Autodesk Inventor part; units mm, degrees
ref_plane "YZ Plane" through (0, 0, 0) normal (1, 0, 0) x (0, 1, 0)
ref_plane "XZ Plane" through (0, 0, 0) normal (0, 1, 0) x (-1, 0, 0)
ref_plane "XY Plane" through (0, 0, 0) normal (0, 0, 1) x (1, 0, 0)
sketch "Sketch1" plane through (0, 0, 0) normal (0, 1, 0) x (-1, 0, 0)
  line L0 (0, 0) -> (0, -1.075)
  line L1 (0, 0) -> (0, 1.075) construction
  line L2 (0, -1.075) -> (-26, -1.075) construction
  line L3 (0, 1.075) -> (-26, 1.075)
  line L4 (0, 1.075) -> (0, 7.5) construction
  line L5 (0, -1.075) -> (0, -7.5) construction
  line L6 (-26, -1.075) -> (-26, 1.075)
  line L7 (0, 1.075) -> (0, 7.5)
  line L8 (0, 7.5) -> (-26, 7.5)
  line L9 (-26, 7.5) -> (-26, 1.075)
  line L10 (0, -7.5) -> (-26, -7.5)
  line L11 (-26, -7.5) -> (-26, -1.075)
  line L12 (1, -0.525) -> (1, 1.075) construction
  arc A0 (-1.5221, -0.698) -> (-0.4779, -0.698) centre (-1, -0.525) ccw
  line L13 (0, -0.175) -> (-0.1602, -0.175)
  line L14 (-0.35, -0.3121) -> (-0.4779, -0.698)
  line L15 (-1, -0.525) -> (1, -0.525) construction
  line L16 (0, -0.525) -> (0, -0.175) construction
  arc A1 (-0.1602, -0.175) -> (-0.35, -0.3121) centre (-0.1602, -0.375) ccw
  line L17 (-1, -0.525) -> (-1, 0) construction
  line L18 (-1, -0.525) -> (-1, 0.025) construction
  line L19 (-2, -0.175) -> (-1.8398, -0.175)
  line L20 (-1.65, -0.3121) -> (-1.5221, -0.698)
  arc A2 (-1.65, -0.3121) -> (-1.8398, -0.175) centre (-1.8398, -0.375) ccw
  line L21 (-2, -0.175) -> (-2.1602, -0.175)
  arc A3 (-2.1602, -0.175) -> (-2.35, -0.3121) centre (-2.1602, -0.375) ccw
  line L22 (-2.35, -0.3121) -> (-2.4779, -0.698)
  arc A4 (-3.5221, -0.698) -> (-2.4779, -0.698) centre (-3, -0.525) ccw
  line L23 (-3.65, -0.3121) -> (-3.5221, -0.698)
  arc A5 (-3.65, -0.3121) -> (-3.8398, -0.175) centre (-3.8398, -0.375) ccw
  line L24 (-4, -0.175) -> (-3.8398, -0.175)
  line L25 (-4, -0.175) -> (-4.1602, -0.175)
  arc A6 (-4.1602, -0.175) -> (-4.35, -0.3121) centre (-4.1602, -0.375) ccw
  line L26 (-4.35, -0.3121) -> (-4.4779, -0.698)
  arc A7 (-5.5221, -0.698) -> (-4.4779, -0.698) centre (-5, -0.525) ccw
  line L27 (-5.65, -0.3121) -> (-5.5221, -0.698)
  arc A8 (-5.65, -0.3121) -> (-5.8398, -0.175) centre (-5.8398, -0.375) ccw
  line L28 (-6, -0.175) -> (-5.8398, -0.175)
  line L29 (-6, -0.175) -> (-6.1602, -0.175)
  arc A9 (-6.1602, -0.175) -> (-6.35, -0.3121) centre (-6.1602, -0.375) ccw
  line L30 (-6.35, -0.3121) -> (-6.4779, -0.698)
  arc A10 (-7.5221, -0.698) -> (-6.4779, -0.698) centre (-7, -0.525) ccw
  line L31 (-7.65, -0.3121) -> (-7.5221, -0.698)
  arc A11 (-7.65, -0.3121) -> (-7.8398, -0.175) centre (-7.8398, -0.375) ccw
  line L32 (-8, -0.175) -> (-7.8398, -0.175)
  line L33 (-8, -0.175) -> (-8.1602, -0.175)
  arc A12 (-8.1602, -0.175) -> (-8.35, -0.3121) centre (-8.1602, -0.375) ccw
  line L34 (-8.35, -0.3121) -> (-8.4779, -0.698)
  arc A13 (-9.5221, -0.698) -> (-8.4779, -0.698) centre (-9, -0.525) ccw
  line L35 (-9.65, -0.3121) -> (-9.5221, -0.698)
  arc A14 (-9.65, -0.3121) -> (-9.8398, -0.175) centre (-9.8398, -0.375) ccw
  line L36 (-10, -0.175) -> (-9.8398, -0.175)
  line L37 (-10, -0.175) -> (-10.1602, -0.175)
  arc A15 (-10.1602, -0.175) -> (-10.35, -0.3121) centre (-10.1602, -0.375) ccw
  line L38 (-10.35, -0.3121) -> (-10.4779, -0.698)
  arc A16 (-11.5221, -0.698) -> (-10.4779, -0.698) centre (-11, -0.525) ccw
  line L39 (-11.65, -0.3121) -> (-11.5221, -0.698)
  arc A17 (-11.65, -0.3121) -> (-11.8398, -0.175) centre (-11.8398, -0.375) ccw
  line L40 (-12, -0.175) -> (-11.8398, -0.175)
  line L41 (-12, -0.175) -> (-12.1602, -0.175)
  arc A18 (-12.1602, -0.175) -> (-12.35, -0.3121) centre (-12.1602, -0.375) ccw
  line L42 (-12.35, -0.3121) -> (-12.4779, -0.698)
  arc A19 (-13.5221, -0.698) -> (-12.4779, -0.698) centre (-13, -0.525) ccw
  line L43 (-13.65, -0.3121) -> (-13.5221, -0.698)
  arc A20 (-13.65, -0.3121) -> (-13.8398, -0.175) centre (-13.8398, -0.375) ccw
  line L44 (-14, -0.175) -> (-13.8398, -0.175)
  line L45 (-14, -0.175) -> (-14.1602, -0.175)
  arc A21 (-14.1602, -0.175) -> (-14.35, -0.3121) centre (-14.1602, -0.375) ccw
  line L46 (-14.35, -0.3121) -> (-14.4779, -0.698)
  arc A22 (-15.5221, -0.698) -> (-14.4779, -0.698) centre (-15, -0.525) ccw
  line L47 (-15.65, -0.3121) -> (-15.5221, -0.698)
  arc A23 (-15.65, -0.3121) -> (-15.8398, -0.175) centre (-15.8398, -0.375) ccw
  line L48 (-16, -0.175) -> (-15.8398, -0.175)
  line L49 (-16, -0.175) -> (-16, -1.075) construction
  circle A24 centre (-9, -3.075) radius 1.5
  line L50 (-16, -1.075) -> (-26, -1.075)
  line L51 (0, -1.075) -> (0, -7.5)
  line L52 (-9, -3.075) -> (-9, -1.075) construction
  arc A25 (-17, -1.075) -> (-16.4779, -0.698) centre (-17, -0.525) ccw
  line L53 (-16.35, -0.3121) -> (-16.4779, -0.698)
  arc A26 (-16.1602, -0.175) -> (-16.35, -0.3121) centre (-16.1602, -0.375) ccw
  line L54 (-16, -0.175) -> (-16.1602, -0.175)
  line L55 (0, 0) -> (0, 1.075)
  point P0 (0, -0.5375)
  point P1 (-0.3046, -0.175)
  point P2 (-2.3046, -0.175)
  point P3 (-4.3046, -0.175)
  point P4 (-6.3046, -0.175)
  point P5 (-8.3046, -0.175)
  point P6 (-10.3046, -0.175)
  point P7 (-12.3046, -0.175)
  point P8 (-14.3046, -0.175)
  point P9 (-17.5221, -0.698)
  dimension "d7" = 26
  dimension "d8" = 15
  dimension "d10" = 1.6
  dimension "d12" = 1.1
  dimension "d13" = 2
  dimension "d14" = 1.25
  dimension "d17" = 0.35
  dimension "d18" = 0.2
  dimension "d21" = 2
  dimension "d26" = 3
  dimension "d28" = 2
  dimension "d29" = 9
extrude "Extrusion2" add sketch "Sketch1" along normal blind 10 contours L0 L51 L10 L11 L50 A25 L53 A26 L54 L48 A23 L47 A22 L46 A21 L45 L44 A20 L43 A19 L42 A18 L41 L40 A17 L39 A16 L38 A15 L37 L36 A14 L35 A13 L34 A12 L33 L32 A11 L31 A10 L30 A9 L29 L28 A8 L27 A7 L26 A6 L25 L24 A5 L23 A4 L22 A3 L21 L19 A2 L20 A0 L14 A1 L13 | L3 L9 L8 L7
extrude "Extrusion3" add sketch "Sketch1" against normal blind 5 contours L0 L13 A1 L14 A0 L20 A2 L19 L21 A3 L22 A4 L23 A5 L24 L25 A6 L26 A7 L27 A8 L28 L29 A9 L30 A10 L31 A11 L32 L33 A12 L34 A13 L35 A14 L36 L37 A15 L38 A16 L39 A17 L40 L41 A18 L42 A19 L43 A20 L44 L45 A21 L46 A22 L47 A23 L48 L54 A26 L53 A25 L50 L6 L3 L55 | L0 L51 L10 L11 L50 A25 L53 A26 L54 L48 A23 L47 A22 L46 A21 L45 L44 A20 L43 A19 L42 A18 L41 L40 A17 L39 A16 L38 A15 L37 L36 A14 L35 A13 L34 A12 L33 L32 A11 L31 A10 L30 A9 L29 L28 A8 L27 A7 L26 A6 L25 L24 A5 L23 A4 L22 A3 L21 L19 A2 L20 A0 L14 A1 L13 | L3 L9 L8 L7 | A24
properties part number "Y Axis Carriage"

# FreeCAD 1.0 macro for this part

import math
import FreeCAD as App
import Part
import Sketcher

V = App.Vector

doc = App.newDocument("Part")
body = doc.addObject("PartDesign::Body", "Body")
body.AllowCompound = True

# Sketch on XZ plane
sketch1 = body.newObject("Sketcher::SketchObject", "Sketch")
sketch1.AttachmentSupport = (doc.getObject("XZ_Plane"), [""])
sketch1.MapMode = "FlatFace"
sketch1.addGeometry([
    Part.LineSegment(V(0, -7.5, 0), V(0, -0.175, 0)),  # 0
    Part.LineSegment(V(0, -0.175, 0), V(0.1602, -0.175, 0)),  # 1
    Part.ArcOfCircle(Part.Circle(V(0.1602, -0.375, 0), V(0, 0, 1), 0.2), math.radians(18.335273), math.radians(90)),  # 2
    Part.LineSegment(V(0.35, -0.3121, 0), V(0.4779, -0.698, 0)),  # 3
    Part.ArcOfCircle(Part.Circle(V(1, -0.525, 0), V(0, 0, 1), 0.550016), math.radians(-161.667171), math.radians(-18.332829)),  # 4
    Part.LineSegment(V(1.5221, -0.698, 0), V(1.65, -0.3121, 0)),  # 5
    Part.ArcOfCircle(Part.Circle(V(1.8398, -0.375, 0), V(0, 0, 1), 0.199951), math.radians(90), math.radians(161.664727)),  # 6
    Part.LineSegment(V(1.8398, -0.175, 0), V(2.1602, -0.175, 0)),  # 7
    Part.ArcOfCircle(Part.Circle(V(2.1602, -0.375, 0), V(0, 0, 1), 0.2), math.radians(18.335273), math.radians(90)),  # 8
    Part.LineSegment(V(2.35, -0.3121, 0), V(2.4779, -0.698, 0)),  # 9
    Part.ArcOfCircle(Part.Circle(V(3, -0.525, 0), V(0, 0, 1), 0.550016), math.radians(-161.667171), math.radians(-18.332829)),  # 10
    Part.LineSegment(V(3.5221, -0.698, 0), V(3.65, -0.3121, 0)),  # 11
    Part.ArcOfCircle(Part.Circle(V(3.8398, -0.375, 0), V(0, 0, 1), 0.199951), math.radians(90), math.radians(161.664727)),  # 12
    Part.LineSegment(V(3.8398, -0.175, 0), V(4.1602, -0.175, 0)),  # 13
    Part.ArcOfCircle(Part.Circle(V(4.1602, -0.375, 0), V(0, 0, 1), 0.2), math.radians(18.335273), math.radians(90)),  # 14
    Part.LineSegment(V(4.35, -0.3121, 0), V(4.4779, -0.698, 0)),  # 15
    Part.ArcOfCircle(Part.Circle(V(5, -0.525, 0), V(0, 0, 1), 0.550016), math.radians(-161.667171), math.radians(-18.332829)),  # 16
    Part.LineSegment(V(5.5221, -0.698, 0), V(5.65, -0.3121, 0)),  # 17
    Part.ArcOfCircle(Part.Circle(V(5.8398, -0.375, 0), V(0, 0, 1), 0.199951), math.radians(90), math.radians(161.664727)),  # 18
    Part.LineSegment(V(5.8398, -0.175, 0), V(6.1602, -0.175, 0)),  # 19
    Part.ArcOfCircle(Part.Circle(V(6.1602, -0.375, 0), V(0, 0, 1), 0.2), math.radians(18.335273), math.radians(90)),  # 20
    Part.LineSegment(V(6.35, -0.3121, 0), V(6.4779, -0.698, 0)),  # 21
    Part.ArcOfCircle(Part.Circle(V(7, -0.525, 0), V(0, 0, 1), 0.550016), math.radians(-161.667171), math.radians(-18.332829)),  # 22
    Part.LineSegment(V(7.5221, -0.698, 0), V(7.65, -0.3121, 0)),  # 23
    Part.ArcOfCircle(Part.Circle(V(7.8398, -0.375, 0), V(0, 0, 1), 0.199951), math.radians(90), math.radians(161.664727)),  # 24
    Part.LineSegment(V(7.8398, -0.175, 0), V(8.1602, -0.175, 0)),  # 25
    Part.ArcOfCircle(Part.Circle(V(8.1602, -0.375, 0), V(0, 0, 1), 0.2), math.radians(18.335273), math.radians(90)),  # 26
    Part.LineSegment(V(8.35, -0.3121, 0), V(8.4779, -0.698, 0)),  # 27
    Part.ArcOfCircle(Part.Circle(V(9, -0.525, 0), V(0, 0, 1), 0.550016), math.radians(-161.667171), math.radians(-18.332829)),  # 28
    Part.LineSegment(V(9.5221, -0.698, 0), V(9.65, -0.3121, 0)),  # 29
    Part.ArcOfCircle(Part.Circle(V(9.8398, -0.375, 0), V(0, 0, 1), 0.199951), math.radians(90), math.radians(161.664727)),  # 30
    Part.LineSegment(V(9.8398, -0.175, 0), V(10.1602, -0.175, 0)),  # 31
    Part.ArcOfCircle(Part.Circle(V(10.1602, -0.375, 0), V(0, 0, 1), 0.2), math.radians(18.335273), math.radians(90)),  # 32
    Part.LineSegment(V(10.35, -0.3121, 0), V(10.4779, -0.698, 0)),  # 33
    Part.ArcOfCircle(Part.Circle(V(11, -0.525, 0), V(0, 0, 1), 0.550016), math.radians(-161.667171), math.radians(-18.332829)),  # 34
    Part.LineSegment(V(11.5221, -0.698, 0), V(11.65, -0.3121, 0)),  # 35
    Part.ArcOfCircle(Part.Circle(V(11.8398, -0.375, 0), V(0, 0, 1), 0.199951), math.radians(90), math.radians(161.664727)),  # 36
    Part.LineSegment(V(11.8398, -0.175, 0), V(12.1602, -0.175, 0)),  # 37
    Part.ArcOfCircle(Part.Circle(V(12.1602, -0.375, 0), V(0, 0, 1), 0.2), math.radians(18.335273), math.radians(90)),  # 38
    Part.LineSegment(V(12.35, -0.3121, 0), V(12.4779, -0.698, 0)),  # 39
    Part.ArcOfCircle(Part.Circle(V(13, -0.525, 0), V(0, 0, 1), 0.550016), math.radians(-161.667171), math.radians(-18.332829)),  # 40
    Part.LineSegment(V(13.5221, -0.698, 0), V(13.65, -0.3121, 0)),  # 41
    Part.ArcOfCircle(Part.Circle(V(13.8398, -0.375, 0), V(0, 0, 1), 0.199951), math.radians(90), math.radians(161.664727)),  # 42
    Part.LineSegment(V(13.8398, -0.175, 0), V(14.1602, -0.175, 0)),  # 43
    Part.ArcOfCircle(Part.Circle(V(14.1602, -0.375, 0), V(0, 0, 1), 0.2), math.radians(18.335273), math.radians(90)),  # 44
    Part.LineSegment(V(14.35, -0.3121, 0), V(14.4779, -0.698, 0)),  # 45
    Part.ArcOfCircle(Part.Circle(V(15, -0.525, 0), V(0, 0, 1), 0.550016), math.radians(-161.667171), math.radians(-18.332829)),  # 46
    Part.LineSegment(V(15.5221, -0.698, 0), V(15.65, -0.3121, 0)),  # 47
    Part.ArcOfCircle(Part.Circle(V(15.8398, -0.375, 0), V(0, 0, 1), 0.199951), math.radians(90), math.radians(161.664727)),  # 48
    Part.LineSegment(V(15.8398, -0.175, 0), V(16.1602, -0.175, 0)),  # 49
    Part.ArcOfCircle(Part.Circle(V(16.1602, -0.375, 0), V(0, 0, 1), 0.2), math.radians(18.335273), math.radians(90)),  # 50
    Part.LineSegment(V(16.35, -0.3121, 0), V(16.4779, -0.698, 0)),  # 51
    Part.ArcOfCircle(Part.Circle(V(17, -0.525, 0), V(0, 0, 1), 0.55), math.radians(-161.667171), math.radians(-90)),  # 52
    Part.LineSegment(V(17, -1.075, 0), V(26, -1.075, 0)),  # 53
    Part.LineSegment(V(26, -1.075, 0), V(26, -7.5, 0)),  # 54
    Part.LineSegment(V(26, -7.5, 0), V(0, -7.5, 0)),  # 55
    Part.Circle(V(9, -3.075, 0), V(0, 0, 1), 1.5),  # 56
    Part.LineSegment(V(26, 1.075, 0), V(0, 1.075, 0)),  # 57
    Part.LineSegment(V(0, 1.075, 0), V(0, 7.5, 0)),  # 58
    Part.LineSegment(V(0, 7.5, 0), V(26, 7.5, 0)),  # 59
    Part.LineSegment(V(26, 7.5, 0), V(26, 1.075, 0)),  # 60
], False)
sketch1.addConstraint([
    Sketcher.Constraint("Coincident", 0, 2, 1, 1),
    Sketcher.Constraint("Tangent", 1, 2, 2, 2),
    Sketcher.Constraint("Tangent", 2, 1, 3, 1),
    Sketcher.Constraint("Tangent", 3, 2, 4, 1),
    Sketcher.Constraint("Tangent", 4, 2, 5, 1),
    Sketcher.Constraint("Tangent", 5, 2, 6, 2),
    Sketcher.Constraint("Tangent", 6, 1, 7, 1),
    Sketcher.Constraint("Tangent", 7, 2, 8, 2),
    Sketcher.Constraint("Tangent", 8, 1, 9, 1),
    Sketcher.Constraint("Tangent", 9, 2, 10, 1),
    Sketcher.Constraint("Tangent", 10, 2, 11, 1),
    Sketcher.Constraint("Tangent", 11, 2, 12, 2),
    Sketcher.Constraint("Tangent", 12, 1, 13, 1),
    Sketcher.Constraint("Tangent", 13, 2, 14, 2),
    Sketcher.Constraint("Tangent", 14, 1, 15, 1),
    Sketcher.Constraint("Tangent", 15, 2, 16, 1),
    Sketcher.Constraint("Tangent", 16, 2, 17, 1),
    Sketcher.Constraint("Tangent", 17, 2, 18, 2),
    Sketcher.Constraint("Tangent", 18, 1, 19, 1),
    Sketcher.Constraint("Tangent", 19, 2, 20, 2),
    Sketcher.Constraint("Tangent", 20, 1, 21, 1),
    Sketcher.Constraint("Tangent", 21, 2, 22, 1),
    Sketcher.Constraint("Tangent", 22, 2, 23, 1),
    Sketcher.Constraint("Tangent", 23, 2, 24, 2),
    Sketcher.Constraint("Tangent", 24, 1, 25, 1),
    Sketcher.Constraint("Tangent", 25, 2, 26, 2),
    Sketcher.Constraint("Tangent", 26, 1, 27, 1),
    Sketcher.Constraint("Tangent", 27, 2, 28, 1),
    Sketcher.Constraint("Tangent", 28, 2, 29, 1),
    Sketcher.Constraint("Tangent", 29, 2, 30, 2),
    Sketcher.Constraint("Tangent", 30, 1, 31, 1),
    Sketcher.Constraint("Tangent", 31, 2, 32, 2),
    Sketcher.Constraint("Tangent", 32, 1, 33, 1),
    Sketcher.Constraint("Tangent", 33, 2, 34, 1),
    Sketcher.Constraint("Tangent", 34, 2, 35, 1),
    Sketcher.Constraint("Tangent", 35, 2, 36, 2),
    Sketcher.Constraint("Tangent", 36, 1, 37, 1),
    Sketcher.Constraint("Tangent", 37, 2, 38, 2),
    Sketcher.Constraint("Tangent", 38, 1, 39, 1),
    Sketcher.Constraint("Tangent", 39, 2, 40, 1),
    Sketcher.Constraint("Tangent", 40, 2, 41, 1),
    Sketcher.Constraint("Tangent", 41, 2, 42, 2),
    Sketcher.Constraint("Tangent", 42, 1, 43, 1),
    Sketcher.Constraint("Tangent", 43, 2, 44, 2),
    Sketcher.Constraint("Tangent", 44, 1, 45, 1),
    Sketcher.Constraint("Tangent", 45, 2, 46, 1),
    Sketcher.Constraint("Tangent", 46, 2, 47, 1),
    Sketcher.Constraint("Tangent", 47, 2, 48, 2),
    Sketcher.Constraint("Tangent", 48, 1, 49, 1),
    Sketcher.Constraint("Tangent", 49, 2, 50, 2),
    Sketcher.Constraint("Tangent", 50, 1, 51, 1),
    Sketcher.Constraint("Tangent", 51, 2, 52, 1),
    Sketcher.Constraint("Tangent", 52, 2, 53, 1),
    Sketcher.Constraint("Coincident", 53, 2, 54, 1),
    Sketcher.Constraint("Coincident", 54, 2, 55, 1),
    Sketcher.Constraint("Coincident", 55, 2, 0, 1),
    Sketcher.Constraint("Coincident", 57, 2, 58, 1),
    Sketcher.Constraint("Coincident", 58, 2, 59, 1),
    Sketcher.Constraint("Coincident", 59, 2, 60, 1),
    Sketcher.Constraint("Coincident", 60, 2, 57, 1),
    Sketcher.Constraint("Vertical", 0),
    Sketcher.Constraint("Horizontal", 1),
    Sketcher.Constraint("Horizontal", 7),
    Sketcher.Constraint("Horizontal", 13),
    Sketcher.Constraint("Horizontal", 19),
    Sketcher.Constraint("Horizontal", 25),
    Sketcher.Constraint("Horizontal", 31),
    Sketcher.Constraint("Horizontal", 37),
    Sketcher.Constraint("Horizontal", 43),
    Sketcher.Constraint("Horizontal", 49),
    Sketcher.Constraint("Horizontal", 53),
    Sketcher.Constraint("Vertical", 54),
    Sketcher.Constraint("Horizontal", 55),
    Sketcher.Constraint("Horizontal", 57),
    Sketcher.Constraint("Vertical", 58),
    Sketcher.Constraint("Horizontal", 59),
    Sketcher.Constraint("Vertical", 60),
    Sketcher.Constraint("Equal", 2, 6),
    Sketcher.Constraint("Equal", 6, 8),
    Sketcher.Constraint("Equal", 4, 10),
    Sketcher.Constraint("Equal", 8, 12),
    Sketcher.Constraint("Equal", 12, 14),
    Sketcher.Constraint("Equal", 10, 16),
    Sketcher.Constraint("Equal", 14, 18),
    Sketcher.Constraint("Equal", 18, 20),
    Sketcher.Constraint("Equal", 16, 22),
    Sketcher.Constraint("Equal", 20, 24),
    Sketcher.Constraint("Equal", 24, 26),
    Sketcher.Constraint("Equal", 22, 28),
    Sketcher.Constraint("Equal", 26, 30),
    Sketcher.Constraint("Equal", 30, 32),
    Sketcher.Constraint("Equal", 28, 34),
    Sketcher.Constraint("Equal", 32, 36),
    Sketcher.Constraint("Equal", 36, 38),
    Sketcher.Constraint("Equal", 34, 40),
    Sketcher.Constraint("Equal", 38, 42),
    Sketcher.Constraint("Equal", 42, 44),
    Sketcher.Constraint("Equal", 40, 46),
    Sketcher.Constraint("Equal", 44, 48),
    Sketcher.Constraint("Equal", 48, 50),
    Sketcher.Constraint("Equal", 46, 52),
    Sketcher.Constraint("Symmetric", 55, 2, 58, 2, -1, 1),
    Sketcher.Constraint("Symmetric", 53, 2, 60, 2, -1),
    Sketcher.Constraint("PointOnObject", 0, 2, -2),
    Sketcher.Constraint("Parallel", 3, 9),
    Sketcher.Constraint("Parallel", 5, 11),
    Sketcher.Constraint("Parallel", 9, 15),
    Sketcher.Constraint("Parallel", 11, 17),
    Sketcher.Constraint("Parallel", 15, 21),
    Sketcher.Constraint("Parallel", 17, 23),
    Sketcher.Constraint("Parallel", 21, 27),
    Sketcher.Constraint("Parallel", 23, 29),
    Sketcher.Constraint("Parallel", 27, 33),
    Sketcher.Constraint("Parallel", 29, 35),
    Sketcher.Constraint("Parallel", 33, 39),
    Sketcher.Constraint("Parallel", 35, 41),
    Sketcher.Constraint("Parallel", 39, 45),
    Sketcher.Constraint("Parallel", 41, 47),
    Sketcher.Constraint("Parallel", 45, 51),
    Sketcher.Constraint("Horizontal", 2, 3, 6, 3),
    Sketcher.Constraint("Horizontal", 4, 3, 10, 3),
    Sketcher.Constraint("Horizontal", 8, 3, 12, 3),
    Sketcher.Constraint("Horizontal", 10, 3, 16, 3),
    Sketcher.Constraint("Horizontal", 14, 3, 18, 3),
    Sketcher.Constraint("Horizontal", 16, 3, 22, 3),
    Sketcher.Constraint("Horizontal", 20, 3, 24, 3),
    Sketcher.Constraint("Horizontal", 22, 3, 28, 3),
    Sketcher.Constraint("Horizontal", 26, 3, 30, 3),
    Sketcher.Constraint("Horizontal", 28, 3, 34, 3),
    Sketcher.Constraint("Horizontal", 32, 3, 36, 3),
    Sketcher.Constraint("Horizontal", 34, 3, 40, 3),
    Sketcher.Constraint("Horizontal", 38, 3, 42, 3),
    Sketcher.Constraint("Horizontal", 40, 3, 46, 3),
    Sketcher.Constraint("Horizontal", 44, 3, 48, 3),
    Sketcher.Constraint("Horizontal", 46, 3, 52, 3),
    Sketcher.Constraint("Horizontal", 3, 2, 4, 2),
    Sketcher.Constraint("Vertical", 28, 3, 56, 3),
    Sketcher.Constraint("Equal", 7, 13),
    Sketcher.Constraint("Equal", 13, 19),
    Sketcher.Constraint("Equal", 19, 25),
    Sketcher.Constraint("Equal", 25, 31),
    Sketcher.Constraint("Equal", 31, 37),
    Sketcher.Constraint("Equal", 37, 43),
    Sketcher.Constraint("Equal", 43, 49),
    Sketcher.Constraint("Diameter", 56, 3.0),
    Sketcher.Constraint("Radius", 2, 0.2),
    Sketcher.Constraint("DistanceX", 53, 1, 53, 2, 9.0),
    Sketcher.Constraint("DistanceX", 55, 2, 55, 1, 26.0),
    Sketcher.Constraint("Radius", 4, 0.55),
    Sketcher.Constraint("DistanceX", -1, 1, 10, 3, 3.0),
    Sketcher.Constraint("DistanceX", -1, 1, 2, 1, 0.35),
    Sketcher.Constraint("DistanceY", 54, 2, -1, 1, 7.5),
    Sketcher.Constraint("DistanceY", 0, 1, 0, 2, 7.325),
    Sketcher.Constraint("DistanceY", 54, 2, 54, 1, 6.425),
    Sketcher.Constraint("DistanceY", 56, 3, -1, 1, 3.075),
])
pad1 = body.newObject("PartDesign::Pad", "Pad")
pad1.Profile = sketch1
pad1.Length = 10
pad1.Reversed = True

# Sketch on XZ plane
sketch2 = body.newObject("Sketcher::SketchObject", "Sketch001")
sketch2.AttachmentSupport = (doc.getObject("XZ_Plane"), [""])
sketch2.MapMode = "FlatFace"
sketch2.addGeometry([
    Part.LineSegment(V(0, 7.5, 0), V(26, 7.5, 0)),
    Part.LineSegment(V(26, 7.5, 0), V(26, -7.5, 0)),
    Part.LineSegment(V(26, -7.5, 0), V(0, -7.5, 0)),
    Part.LineSegment(V(0, -7.5, 0), V(0, 7.5, 0)),
], False)
sketch2.addConstraint([
    Sketcher.Constraint("Coincident", 0, 2, 1, 1),
    Sketcher.Constraint("Coincident", 1, 2, 2, 1),
    Sketcher.Constraint("Coincident", 2, 2, 3, 1),
    Sketcher.Constraint("Coincident", 3, 2, 0, 1),
    Sketcher.Constraint("Horizontal", 0),
    Sketcher.Constraint("Vertical", 1),
    Sketcher.Constraint("Horizontal", 2),
    Sketcher.Constraint("Vertical", 3),
    Sketcher.Constraint("Symmetric", 2, 2, 3, 2, -1, 1),
    Sketcher.Constraint("DistanceX", 0, 1, 0, 2, 26.0),
    Sketcher.Constraint("DistanceY", 1, 2, 1, 1, 15.0),
])
pad2 = body.newObject("PartDesign::Pad", "Pad001")
pad2.Profile = sketch2
pad2.Length = 5

doc.recompute()
